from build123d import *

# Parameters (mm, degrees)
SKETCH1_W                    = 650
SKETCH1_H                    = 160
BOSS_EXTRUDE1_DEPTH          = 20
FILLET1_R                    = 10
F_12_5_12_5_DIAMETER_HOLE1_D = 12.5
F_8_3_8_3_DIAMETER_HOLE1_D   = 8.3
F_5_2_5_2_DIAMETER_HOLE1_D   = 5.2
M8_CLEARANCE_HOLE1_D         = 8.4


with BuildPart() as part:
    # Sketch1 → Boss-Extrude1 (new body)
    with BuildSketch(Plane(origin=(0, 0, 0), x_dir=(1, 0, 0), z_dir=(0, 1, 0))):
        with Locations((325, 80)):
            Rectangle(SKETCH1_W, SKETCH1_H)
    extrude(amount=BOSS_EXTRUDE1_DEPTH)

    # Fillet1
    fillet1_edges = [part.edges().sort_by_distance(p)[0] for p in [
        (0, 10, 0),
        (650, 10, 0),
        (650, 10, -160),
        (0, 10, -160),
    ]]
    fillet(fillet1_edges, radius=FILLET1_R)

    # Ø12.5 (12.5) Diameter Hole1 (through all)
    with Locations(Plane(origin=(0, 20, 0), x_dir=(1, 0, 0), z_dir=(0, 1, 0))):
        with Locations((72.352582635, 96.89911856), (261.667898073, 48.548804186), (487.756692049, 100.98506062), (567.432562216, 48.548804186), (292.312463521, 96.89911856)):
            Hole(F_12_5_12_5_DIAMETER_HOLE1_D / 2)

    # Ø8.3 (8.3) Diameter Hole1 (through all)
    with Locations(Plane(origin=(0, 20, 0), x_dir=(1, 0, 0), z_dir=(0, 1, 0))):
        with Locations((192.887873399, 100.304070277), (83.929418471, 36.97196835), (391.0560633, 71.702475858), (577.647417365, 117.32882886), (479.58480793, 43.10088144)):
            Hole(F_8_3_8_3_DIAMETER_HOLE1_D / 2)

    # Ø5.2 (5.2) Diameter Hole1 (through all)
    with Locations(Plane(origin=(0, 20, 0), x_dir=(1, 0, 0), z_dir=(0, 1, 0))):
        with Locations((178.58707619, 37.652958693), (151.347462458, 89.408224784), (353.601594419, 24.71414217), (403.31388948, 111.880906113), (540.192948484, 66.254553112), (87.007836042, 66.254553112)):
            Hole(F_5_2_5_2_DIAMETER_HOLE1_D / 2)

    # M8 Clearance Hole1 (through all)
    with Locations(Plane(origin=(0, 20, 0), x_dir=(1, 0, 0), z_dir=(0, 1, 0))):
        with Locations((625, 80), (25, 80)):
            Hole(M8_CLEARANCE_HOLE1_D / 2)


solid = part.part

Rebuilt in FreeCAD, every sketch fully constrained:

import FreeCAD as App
import Part
import Sketcher
Q = App.Units.Quantity


def edges_at(feature, points):
    """Names of the edges that pass closest to the given points."""
    edges = feature.Shape.Edges
    near = lambda p: min(range(len(edges)), key=lambda i: edges[i].distToShape(Part.Vertex(*p))[0])
    return sorted({f"Edge{near(p) + 1}" for p in points})

doc = App.newDocument("Part")
body = doc.addObject("PartDesign::Body", "Body")

sketch1 = doc.addObject("Sketcher::SketchObject", "Sketch")
body.addObject(sketch1)
sketch1.AttachmentSupport = (doc.XZ_Plane, [""])
sketch1.MapMode = "FlatFace"
sketch1.addGeometry([
    Part.LineSegment(App.Vector(0, -160, 0), App.Vector(0, 0, 0)),
    Part.LineSegment(App.Vector(0, 0, 0), App.Vector(650, 0, 0)),
    Part.LineSegment(App.Vector(650, 0, 0), App.Vector(650, -160, 0)),
    Part.LineSegment(App.Vector(650, -160, 0), App.Vector(0, -160, 0)),
], False)
sketch1.addConstraint([
    Sketcher.Constraint("Coincident", 0, 2, 1, 1),
    Sketcher.Constraint("Coincident", 1, 2, 2, 1),
    Sketcher.Constraint("Coincident", 2, 2, 3, 1),
    Sketcher.Constraint("Coincident", 3, 2, 0, 1),
    Sketcher.Constraint("Vertical", 0),
    Sketcher.Constraint("Horizontal", 1),
    Sketcher.Constraint("Vertical", 2),
    Sketcher.Constraint("Horizontal", 3),
    Sketcher.Constraint("Coincident", 0, 2, -1, 1),
    Sketcher.Constraint("DistanceX", 1, 1, 1, 2, Q("650 mm")),
    Sketcher.Constraint("DistanceY", 0, 1, 0, 2, Q("160 mm")),
])
pad1 = doc.addObject("PartDesign::Pad", "Pad")
body.addObject(pad1)
pad1.Profile = sketch1
pad1.Length = 20
pad1.Reversed = True
doc.recompute()

fillet = doc.addObject("PartDesign::Fillet", "Fillet")
body.addObject(fillet)
fillet.Base = (pad1, edges_at(pad1, [
    (0, 10, 0),
    (650, 10, 0),
    (650, 10, -160),
    (0, 10, -160),
]))
fillet.Radius = 10

sketch2 = doc.addObject("Sketcher::SketchObject", "Sketch001")
body.addObject(sketch2)
sketch2.AttachmentSupport = (doc.XZ_Plane, [""])
sketch2.MapMode = "FlatFace"
sketch2.AttachmentOffset = App.Placement(App.Vector(0, 0, -20), App.Rotation())
sketch2.addGeometry([
    Part.Circle(App.Vector(72, -97, 0), App.Vector(0, 0, 1), 6),
    Part.Circle(App.Vector(262, -49, 0), App.Vector(0, 0, 1), 6),
    Part.Circle(App.Vector(488, -101, 0), App.Vector(0, 0, 1), 6),
    Part.Circle(App.Vector(567, -49, 0), App.Vector(0, 0, 1), 6),
    Part.Circle(App.Vector(292, -97, 0), App.Vector(0, 0, 1), 6),
], False)
sketch2.addConstraint([
    Sketcher.Constraint("Equal", 0, 1),
    Sketcher.Constraint("Equal", 1, 2),
    Sketcher.Constraint("Equal", 2, 3),
    Sketcher.Constraint("Equal", 3, 4),
    Sketcher.Constraint("Horizontal", 1, 3, 3, 3),
    Sketcher.Constraint("Horizontal", 0, 3, 4, 3),
    Sketcher.Constraint("Diameter", 0, Q("12.5 mm")),
    Sketcher.Constraint("DistanceX", -1, 1, 1, 3, Q("261.667898 mm")),
    Sketcher.Constraint("DistanceX", 4, 3, 3, 3, Q("275.120099 mm")),
    Sketcher.Constraint("DistanceY", 0, 3, -1, 1, Q("96.899119 mm")),
    Sketcher.Constraint("DistanceY", 2, 3, -1, 1, Q("100.985061 mm")),
    Sketcher.Constraint("DistanceX", 0, 3, 2, 3, Q("415.404109 mm")),
    Sketcher.Constraint("DistanceX", 2, 3, 3, 3, Q("79.67587 mm")),
    Sketcher.Constraint("DistanceX", -1, 1, 0, 3, Q("72.352583 mm")),
    Sketcher.Constraint("DistanceY", 1, 3, -1, 1, Q("48.548804 mm")),
])
doc.recompute()
hole = doc.addObject("PartDesign::Hole", "Hole")
body.addObject(hole)
hole.Profile = sketch2
hole.ThreadType = "None"
hole.Diameter = 12.5
hole.DepthType = "ThroughAll"
hole.Reversed = True

sketch3 = doc.addObject("Sketcher::SketchObject", "Sketch002")
body.addObject(sketch3)
sketch3.AttachmentSupport = (doc.XZ_Plane, [""])
sketch3.MapMode = "FlatFace"
sketch3.AttachmentOffset = App.Placement(App.Vector(0, 0, -20), App.Rotation())
sketch3.addGeometry([
    Part.Circle(App.Vector(192.9, -100.3, 0), App.Vector(0, 0, 1), 4.2),
    Part.Circle(App.Vector(83.9, -37, 0), App.Vector(0, 0, 1), 4.2),
    Part.Circle(App.Vector(391.1, -71.7, 0), App.Vector(0, 0, 1), 4.2),
    Part.Circle(App.Vector(577.6, -117.3, 0), App.Vector(0, 0, 1), 4.2),
    Part.Circle(App.Vector(479.6, -43.1, 0), App.Vector(0, 0, 1), 4.2),
], False)
sketch3.addConstraint([
    Sketcher.Constraint("Equal", 0, 1),
    Sketcher.Constraint("Equal", 1, 2),
    Sketcher.Constraint("Equal", 2, 3),
    Sketcher.Constraint("Equal", 3, 4),
    Sketcher.Constraint("Diameter", 0, Q("8.3 mm")),
    Sketcher.Constraint("DistanceX", 1, 3, 3, 3, Q("493.717999 mm")),
    Sketcher.Constraint("DistanceY", 0, 3, 1, 3, Q("63.332102 mm")),
    Sketcher.Constraint("DistanceY", 0, 3, -1, 1, Q("100.30407 mm")),
    Sketcher.Constraint("DistanceX", -1, 1, 1, 3, Q("83.929418 mm")),
    Sketcher.Constraint("DistanceY", 3, 3, -1, 1, Q("117.328829 mm")),
    Sketcher.Constraint("DistanceY", 4, 3, -1, 1, Q("43.100881 mm")),
    Sketcher.Constraint("DistanceX", 0, 3, 2, 3, Q("198.16819 mm")),
    Sketcher.Constraint("DistanceX", 4, 3, 3, 3, Q("98.062609 mm")),
    Sketcher.Constraint("DistanceX", -1, 1, 0, 3, Q("192.887873 mm")),
    Sketcher.Constraint("DistanceY", 2, 3, -1, 1, Q("71.702476 mm")),
])
doc.recompute()
hole2 = doc.addObject("PartDesign::Hole", "Hole001")
body.addObject(hole2)
hole2.Profile = sketch3
hole2.ThreadType = "None"
hole2.Diameter = 8.3
hole2.DepthType = "ThroughAll"
hole2.Reversed = True

sketch4 = doc.addObject("Sketcher::SketchObject", "Sketch003")
body.addObject(sketch4)
sketch4.AttachmentSupport = (doc.XZ_Plane, [""])
sketch4.MapMode = "FlatFace"
sketch4.AttachmentOffset = App.Placement(App.Vector(0, 0, -20), App.Rotation())
sketch4.addGeometry([
    Part.Circle(App.Vector(178.6, -37.7, 0), App.Vector(0, 0, 1), 2.6),
    Part.Circle(App.Vector(151.3, -89.4, 0), App.Vector(0, 0, 1), 2.6),
    Part.Circle(App.Vector(353.6, -24.7, 0), App.Vector(0, 0, 1), 2.6),
    Part.Circle(App.Vector(403.3, -111.9, 0), App.Vector(0, 0, 1), 2.6),
    Part.Circle(App.Vector(540.2, -66.3, 0), App.Vector(0, 0, 1), 2.6),
    Part.Circle(App.Vector(87, -66.3, 0), App.Vector(0, 0, 1), 2.6),
], False)
sketch4.addConstraint([
    Sketcher.Constraint("Equal", 0, 1),
    Sketcher.Constraint("Equal", 1, 2),
    Sketcher.Constraint("Equal", 2, 3),
    Sketcher.Constraint("Equal", 3, 4),
    Sketcher.Constraint("Equal", 4, 5),
    Sketcher.Constraint("Horizontal", 4, 3, 5, 3),
    Sketcher.Constraint("Diameter", 0, Q("5.2 mm")),
    Sketcher.Constraint("DistanceY", 0, 3, -1, 1, Q("37.652959 mm")),
    Sketcher.Constraint("DistanceX", -1, 1, 3, 3, Q("403.313889 mm")),
    Sketcher.Constraint("DistanceX", -1, 1, 4, 3, Q("540.192948 mm")),
    Sketcher.Constraint("DistanceX", 0, 3, 2, 3, Q("175.014518 mm")),
    Sketcher.Constraint("DistanceX", 1, 3, 2, 3, Q("202.254132 mm")),
    Sketcher.Constraint("DistanceY", 3, 3, 1, 3, Q("22.472681 mm")),
    Sketcher.Constraint("DistanceY", 4, 3, 2, 3, Q("41.540411 mm")),
    Sketcher.Constraint("DistanceY", 1, 3, 4, 3, Q("23.153672 mm")),
    Sketcher.Constraint("DistanceX", 5, 3, 0, 3, Q("91.57924 mm")),
    Sketcher.Constraint("DistanceX", -1, 1, 0, 3, Q("178.587076 mm")),
    Sketcher.Constraint("DistanceY", 1, 3, -1, 1, Q("89.408225 mm")),
])
doc.recompute()
hole3 = doc.addObject("PartDesign::Hole", "Hole002")
body.addObject(hole3)
hole3.Profile = sketch4
hole3.ThreadType = "None"
hole3.Diameter = 5.2
hole3.DepthType = "ThroughAll"
hole3.Reversed = True

sketch5 = doc.addObject("Sketcher::SketchObject", "Sketch004")
body.addObject(sketch5)
sketch5.AttachmentSupport = (doc.XZ_Plane, [""])
sketch5.MapMode = "FlatFace"
sketch5.AttachmentOffset = App.Placement(App.Vector(0, 0, -20), App.Rotation())
sketch5.addGeometry([
    Part.Circle(App.Vector(625, -80, 0), App.Vector(0, 0, 1), 4.2),
    Part.Circle(App.Vector(25, -80, 0), App.Vector(0, 0, 1), 4.2),
], False)
sketch5.addConstraint([
    Sketcher.Constraint("Equal", 0, 1),
    Sketcher.Constraint("Horizontal", 0, 3, 1, 3),
    Sketcher.Constraint("Diameter", 0, Q("8.4 mm")),
    Sketcher.Constraint("DistanceX", -1, 1, 0, 3, Q("625 mm")),
    Sketcher.Constraint("DistanceY", 0, 3, -1, 1, Q("80 mm")),
    Sketcher.Constraint("DistanceX", -1, 1, 1, 3, Q("25 mm")),
])
doc.recompute()
hole4 = doc.addObject("PartDesign::Hole", "Hole003")
body.addObject(hole4)
hole4.Profile = sketch5
hole4.ThreadType = "None"
hole4.Diameter = 8.4
hole4.DepthType = "ThroughAll"
hole4.Reversed = True

doc.recompute()
